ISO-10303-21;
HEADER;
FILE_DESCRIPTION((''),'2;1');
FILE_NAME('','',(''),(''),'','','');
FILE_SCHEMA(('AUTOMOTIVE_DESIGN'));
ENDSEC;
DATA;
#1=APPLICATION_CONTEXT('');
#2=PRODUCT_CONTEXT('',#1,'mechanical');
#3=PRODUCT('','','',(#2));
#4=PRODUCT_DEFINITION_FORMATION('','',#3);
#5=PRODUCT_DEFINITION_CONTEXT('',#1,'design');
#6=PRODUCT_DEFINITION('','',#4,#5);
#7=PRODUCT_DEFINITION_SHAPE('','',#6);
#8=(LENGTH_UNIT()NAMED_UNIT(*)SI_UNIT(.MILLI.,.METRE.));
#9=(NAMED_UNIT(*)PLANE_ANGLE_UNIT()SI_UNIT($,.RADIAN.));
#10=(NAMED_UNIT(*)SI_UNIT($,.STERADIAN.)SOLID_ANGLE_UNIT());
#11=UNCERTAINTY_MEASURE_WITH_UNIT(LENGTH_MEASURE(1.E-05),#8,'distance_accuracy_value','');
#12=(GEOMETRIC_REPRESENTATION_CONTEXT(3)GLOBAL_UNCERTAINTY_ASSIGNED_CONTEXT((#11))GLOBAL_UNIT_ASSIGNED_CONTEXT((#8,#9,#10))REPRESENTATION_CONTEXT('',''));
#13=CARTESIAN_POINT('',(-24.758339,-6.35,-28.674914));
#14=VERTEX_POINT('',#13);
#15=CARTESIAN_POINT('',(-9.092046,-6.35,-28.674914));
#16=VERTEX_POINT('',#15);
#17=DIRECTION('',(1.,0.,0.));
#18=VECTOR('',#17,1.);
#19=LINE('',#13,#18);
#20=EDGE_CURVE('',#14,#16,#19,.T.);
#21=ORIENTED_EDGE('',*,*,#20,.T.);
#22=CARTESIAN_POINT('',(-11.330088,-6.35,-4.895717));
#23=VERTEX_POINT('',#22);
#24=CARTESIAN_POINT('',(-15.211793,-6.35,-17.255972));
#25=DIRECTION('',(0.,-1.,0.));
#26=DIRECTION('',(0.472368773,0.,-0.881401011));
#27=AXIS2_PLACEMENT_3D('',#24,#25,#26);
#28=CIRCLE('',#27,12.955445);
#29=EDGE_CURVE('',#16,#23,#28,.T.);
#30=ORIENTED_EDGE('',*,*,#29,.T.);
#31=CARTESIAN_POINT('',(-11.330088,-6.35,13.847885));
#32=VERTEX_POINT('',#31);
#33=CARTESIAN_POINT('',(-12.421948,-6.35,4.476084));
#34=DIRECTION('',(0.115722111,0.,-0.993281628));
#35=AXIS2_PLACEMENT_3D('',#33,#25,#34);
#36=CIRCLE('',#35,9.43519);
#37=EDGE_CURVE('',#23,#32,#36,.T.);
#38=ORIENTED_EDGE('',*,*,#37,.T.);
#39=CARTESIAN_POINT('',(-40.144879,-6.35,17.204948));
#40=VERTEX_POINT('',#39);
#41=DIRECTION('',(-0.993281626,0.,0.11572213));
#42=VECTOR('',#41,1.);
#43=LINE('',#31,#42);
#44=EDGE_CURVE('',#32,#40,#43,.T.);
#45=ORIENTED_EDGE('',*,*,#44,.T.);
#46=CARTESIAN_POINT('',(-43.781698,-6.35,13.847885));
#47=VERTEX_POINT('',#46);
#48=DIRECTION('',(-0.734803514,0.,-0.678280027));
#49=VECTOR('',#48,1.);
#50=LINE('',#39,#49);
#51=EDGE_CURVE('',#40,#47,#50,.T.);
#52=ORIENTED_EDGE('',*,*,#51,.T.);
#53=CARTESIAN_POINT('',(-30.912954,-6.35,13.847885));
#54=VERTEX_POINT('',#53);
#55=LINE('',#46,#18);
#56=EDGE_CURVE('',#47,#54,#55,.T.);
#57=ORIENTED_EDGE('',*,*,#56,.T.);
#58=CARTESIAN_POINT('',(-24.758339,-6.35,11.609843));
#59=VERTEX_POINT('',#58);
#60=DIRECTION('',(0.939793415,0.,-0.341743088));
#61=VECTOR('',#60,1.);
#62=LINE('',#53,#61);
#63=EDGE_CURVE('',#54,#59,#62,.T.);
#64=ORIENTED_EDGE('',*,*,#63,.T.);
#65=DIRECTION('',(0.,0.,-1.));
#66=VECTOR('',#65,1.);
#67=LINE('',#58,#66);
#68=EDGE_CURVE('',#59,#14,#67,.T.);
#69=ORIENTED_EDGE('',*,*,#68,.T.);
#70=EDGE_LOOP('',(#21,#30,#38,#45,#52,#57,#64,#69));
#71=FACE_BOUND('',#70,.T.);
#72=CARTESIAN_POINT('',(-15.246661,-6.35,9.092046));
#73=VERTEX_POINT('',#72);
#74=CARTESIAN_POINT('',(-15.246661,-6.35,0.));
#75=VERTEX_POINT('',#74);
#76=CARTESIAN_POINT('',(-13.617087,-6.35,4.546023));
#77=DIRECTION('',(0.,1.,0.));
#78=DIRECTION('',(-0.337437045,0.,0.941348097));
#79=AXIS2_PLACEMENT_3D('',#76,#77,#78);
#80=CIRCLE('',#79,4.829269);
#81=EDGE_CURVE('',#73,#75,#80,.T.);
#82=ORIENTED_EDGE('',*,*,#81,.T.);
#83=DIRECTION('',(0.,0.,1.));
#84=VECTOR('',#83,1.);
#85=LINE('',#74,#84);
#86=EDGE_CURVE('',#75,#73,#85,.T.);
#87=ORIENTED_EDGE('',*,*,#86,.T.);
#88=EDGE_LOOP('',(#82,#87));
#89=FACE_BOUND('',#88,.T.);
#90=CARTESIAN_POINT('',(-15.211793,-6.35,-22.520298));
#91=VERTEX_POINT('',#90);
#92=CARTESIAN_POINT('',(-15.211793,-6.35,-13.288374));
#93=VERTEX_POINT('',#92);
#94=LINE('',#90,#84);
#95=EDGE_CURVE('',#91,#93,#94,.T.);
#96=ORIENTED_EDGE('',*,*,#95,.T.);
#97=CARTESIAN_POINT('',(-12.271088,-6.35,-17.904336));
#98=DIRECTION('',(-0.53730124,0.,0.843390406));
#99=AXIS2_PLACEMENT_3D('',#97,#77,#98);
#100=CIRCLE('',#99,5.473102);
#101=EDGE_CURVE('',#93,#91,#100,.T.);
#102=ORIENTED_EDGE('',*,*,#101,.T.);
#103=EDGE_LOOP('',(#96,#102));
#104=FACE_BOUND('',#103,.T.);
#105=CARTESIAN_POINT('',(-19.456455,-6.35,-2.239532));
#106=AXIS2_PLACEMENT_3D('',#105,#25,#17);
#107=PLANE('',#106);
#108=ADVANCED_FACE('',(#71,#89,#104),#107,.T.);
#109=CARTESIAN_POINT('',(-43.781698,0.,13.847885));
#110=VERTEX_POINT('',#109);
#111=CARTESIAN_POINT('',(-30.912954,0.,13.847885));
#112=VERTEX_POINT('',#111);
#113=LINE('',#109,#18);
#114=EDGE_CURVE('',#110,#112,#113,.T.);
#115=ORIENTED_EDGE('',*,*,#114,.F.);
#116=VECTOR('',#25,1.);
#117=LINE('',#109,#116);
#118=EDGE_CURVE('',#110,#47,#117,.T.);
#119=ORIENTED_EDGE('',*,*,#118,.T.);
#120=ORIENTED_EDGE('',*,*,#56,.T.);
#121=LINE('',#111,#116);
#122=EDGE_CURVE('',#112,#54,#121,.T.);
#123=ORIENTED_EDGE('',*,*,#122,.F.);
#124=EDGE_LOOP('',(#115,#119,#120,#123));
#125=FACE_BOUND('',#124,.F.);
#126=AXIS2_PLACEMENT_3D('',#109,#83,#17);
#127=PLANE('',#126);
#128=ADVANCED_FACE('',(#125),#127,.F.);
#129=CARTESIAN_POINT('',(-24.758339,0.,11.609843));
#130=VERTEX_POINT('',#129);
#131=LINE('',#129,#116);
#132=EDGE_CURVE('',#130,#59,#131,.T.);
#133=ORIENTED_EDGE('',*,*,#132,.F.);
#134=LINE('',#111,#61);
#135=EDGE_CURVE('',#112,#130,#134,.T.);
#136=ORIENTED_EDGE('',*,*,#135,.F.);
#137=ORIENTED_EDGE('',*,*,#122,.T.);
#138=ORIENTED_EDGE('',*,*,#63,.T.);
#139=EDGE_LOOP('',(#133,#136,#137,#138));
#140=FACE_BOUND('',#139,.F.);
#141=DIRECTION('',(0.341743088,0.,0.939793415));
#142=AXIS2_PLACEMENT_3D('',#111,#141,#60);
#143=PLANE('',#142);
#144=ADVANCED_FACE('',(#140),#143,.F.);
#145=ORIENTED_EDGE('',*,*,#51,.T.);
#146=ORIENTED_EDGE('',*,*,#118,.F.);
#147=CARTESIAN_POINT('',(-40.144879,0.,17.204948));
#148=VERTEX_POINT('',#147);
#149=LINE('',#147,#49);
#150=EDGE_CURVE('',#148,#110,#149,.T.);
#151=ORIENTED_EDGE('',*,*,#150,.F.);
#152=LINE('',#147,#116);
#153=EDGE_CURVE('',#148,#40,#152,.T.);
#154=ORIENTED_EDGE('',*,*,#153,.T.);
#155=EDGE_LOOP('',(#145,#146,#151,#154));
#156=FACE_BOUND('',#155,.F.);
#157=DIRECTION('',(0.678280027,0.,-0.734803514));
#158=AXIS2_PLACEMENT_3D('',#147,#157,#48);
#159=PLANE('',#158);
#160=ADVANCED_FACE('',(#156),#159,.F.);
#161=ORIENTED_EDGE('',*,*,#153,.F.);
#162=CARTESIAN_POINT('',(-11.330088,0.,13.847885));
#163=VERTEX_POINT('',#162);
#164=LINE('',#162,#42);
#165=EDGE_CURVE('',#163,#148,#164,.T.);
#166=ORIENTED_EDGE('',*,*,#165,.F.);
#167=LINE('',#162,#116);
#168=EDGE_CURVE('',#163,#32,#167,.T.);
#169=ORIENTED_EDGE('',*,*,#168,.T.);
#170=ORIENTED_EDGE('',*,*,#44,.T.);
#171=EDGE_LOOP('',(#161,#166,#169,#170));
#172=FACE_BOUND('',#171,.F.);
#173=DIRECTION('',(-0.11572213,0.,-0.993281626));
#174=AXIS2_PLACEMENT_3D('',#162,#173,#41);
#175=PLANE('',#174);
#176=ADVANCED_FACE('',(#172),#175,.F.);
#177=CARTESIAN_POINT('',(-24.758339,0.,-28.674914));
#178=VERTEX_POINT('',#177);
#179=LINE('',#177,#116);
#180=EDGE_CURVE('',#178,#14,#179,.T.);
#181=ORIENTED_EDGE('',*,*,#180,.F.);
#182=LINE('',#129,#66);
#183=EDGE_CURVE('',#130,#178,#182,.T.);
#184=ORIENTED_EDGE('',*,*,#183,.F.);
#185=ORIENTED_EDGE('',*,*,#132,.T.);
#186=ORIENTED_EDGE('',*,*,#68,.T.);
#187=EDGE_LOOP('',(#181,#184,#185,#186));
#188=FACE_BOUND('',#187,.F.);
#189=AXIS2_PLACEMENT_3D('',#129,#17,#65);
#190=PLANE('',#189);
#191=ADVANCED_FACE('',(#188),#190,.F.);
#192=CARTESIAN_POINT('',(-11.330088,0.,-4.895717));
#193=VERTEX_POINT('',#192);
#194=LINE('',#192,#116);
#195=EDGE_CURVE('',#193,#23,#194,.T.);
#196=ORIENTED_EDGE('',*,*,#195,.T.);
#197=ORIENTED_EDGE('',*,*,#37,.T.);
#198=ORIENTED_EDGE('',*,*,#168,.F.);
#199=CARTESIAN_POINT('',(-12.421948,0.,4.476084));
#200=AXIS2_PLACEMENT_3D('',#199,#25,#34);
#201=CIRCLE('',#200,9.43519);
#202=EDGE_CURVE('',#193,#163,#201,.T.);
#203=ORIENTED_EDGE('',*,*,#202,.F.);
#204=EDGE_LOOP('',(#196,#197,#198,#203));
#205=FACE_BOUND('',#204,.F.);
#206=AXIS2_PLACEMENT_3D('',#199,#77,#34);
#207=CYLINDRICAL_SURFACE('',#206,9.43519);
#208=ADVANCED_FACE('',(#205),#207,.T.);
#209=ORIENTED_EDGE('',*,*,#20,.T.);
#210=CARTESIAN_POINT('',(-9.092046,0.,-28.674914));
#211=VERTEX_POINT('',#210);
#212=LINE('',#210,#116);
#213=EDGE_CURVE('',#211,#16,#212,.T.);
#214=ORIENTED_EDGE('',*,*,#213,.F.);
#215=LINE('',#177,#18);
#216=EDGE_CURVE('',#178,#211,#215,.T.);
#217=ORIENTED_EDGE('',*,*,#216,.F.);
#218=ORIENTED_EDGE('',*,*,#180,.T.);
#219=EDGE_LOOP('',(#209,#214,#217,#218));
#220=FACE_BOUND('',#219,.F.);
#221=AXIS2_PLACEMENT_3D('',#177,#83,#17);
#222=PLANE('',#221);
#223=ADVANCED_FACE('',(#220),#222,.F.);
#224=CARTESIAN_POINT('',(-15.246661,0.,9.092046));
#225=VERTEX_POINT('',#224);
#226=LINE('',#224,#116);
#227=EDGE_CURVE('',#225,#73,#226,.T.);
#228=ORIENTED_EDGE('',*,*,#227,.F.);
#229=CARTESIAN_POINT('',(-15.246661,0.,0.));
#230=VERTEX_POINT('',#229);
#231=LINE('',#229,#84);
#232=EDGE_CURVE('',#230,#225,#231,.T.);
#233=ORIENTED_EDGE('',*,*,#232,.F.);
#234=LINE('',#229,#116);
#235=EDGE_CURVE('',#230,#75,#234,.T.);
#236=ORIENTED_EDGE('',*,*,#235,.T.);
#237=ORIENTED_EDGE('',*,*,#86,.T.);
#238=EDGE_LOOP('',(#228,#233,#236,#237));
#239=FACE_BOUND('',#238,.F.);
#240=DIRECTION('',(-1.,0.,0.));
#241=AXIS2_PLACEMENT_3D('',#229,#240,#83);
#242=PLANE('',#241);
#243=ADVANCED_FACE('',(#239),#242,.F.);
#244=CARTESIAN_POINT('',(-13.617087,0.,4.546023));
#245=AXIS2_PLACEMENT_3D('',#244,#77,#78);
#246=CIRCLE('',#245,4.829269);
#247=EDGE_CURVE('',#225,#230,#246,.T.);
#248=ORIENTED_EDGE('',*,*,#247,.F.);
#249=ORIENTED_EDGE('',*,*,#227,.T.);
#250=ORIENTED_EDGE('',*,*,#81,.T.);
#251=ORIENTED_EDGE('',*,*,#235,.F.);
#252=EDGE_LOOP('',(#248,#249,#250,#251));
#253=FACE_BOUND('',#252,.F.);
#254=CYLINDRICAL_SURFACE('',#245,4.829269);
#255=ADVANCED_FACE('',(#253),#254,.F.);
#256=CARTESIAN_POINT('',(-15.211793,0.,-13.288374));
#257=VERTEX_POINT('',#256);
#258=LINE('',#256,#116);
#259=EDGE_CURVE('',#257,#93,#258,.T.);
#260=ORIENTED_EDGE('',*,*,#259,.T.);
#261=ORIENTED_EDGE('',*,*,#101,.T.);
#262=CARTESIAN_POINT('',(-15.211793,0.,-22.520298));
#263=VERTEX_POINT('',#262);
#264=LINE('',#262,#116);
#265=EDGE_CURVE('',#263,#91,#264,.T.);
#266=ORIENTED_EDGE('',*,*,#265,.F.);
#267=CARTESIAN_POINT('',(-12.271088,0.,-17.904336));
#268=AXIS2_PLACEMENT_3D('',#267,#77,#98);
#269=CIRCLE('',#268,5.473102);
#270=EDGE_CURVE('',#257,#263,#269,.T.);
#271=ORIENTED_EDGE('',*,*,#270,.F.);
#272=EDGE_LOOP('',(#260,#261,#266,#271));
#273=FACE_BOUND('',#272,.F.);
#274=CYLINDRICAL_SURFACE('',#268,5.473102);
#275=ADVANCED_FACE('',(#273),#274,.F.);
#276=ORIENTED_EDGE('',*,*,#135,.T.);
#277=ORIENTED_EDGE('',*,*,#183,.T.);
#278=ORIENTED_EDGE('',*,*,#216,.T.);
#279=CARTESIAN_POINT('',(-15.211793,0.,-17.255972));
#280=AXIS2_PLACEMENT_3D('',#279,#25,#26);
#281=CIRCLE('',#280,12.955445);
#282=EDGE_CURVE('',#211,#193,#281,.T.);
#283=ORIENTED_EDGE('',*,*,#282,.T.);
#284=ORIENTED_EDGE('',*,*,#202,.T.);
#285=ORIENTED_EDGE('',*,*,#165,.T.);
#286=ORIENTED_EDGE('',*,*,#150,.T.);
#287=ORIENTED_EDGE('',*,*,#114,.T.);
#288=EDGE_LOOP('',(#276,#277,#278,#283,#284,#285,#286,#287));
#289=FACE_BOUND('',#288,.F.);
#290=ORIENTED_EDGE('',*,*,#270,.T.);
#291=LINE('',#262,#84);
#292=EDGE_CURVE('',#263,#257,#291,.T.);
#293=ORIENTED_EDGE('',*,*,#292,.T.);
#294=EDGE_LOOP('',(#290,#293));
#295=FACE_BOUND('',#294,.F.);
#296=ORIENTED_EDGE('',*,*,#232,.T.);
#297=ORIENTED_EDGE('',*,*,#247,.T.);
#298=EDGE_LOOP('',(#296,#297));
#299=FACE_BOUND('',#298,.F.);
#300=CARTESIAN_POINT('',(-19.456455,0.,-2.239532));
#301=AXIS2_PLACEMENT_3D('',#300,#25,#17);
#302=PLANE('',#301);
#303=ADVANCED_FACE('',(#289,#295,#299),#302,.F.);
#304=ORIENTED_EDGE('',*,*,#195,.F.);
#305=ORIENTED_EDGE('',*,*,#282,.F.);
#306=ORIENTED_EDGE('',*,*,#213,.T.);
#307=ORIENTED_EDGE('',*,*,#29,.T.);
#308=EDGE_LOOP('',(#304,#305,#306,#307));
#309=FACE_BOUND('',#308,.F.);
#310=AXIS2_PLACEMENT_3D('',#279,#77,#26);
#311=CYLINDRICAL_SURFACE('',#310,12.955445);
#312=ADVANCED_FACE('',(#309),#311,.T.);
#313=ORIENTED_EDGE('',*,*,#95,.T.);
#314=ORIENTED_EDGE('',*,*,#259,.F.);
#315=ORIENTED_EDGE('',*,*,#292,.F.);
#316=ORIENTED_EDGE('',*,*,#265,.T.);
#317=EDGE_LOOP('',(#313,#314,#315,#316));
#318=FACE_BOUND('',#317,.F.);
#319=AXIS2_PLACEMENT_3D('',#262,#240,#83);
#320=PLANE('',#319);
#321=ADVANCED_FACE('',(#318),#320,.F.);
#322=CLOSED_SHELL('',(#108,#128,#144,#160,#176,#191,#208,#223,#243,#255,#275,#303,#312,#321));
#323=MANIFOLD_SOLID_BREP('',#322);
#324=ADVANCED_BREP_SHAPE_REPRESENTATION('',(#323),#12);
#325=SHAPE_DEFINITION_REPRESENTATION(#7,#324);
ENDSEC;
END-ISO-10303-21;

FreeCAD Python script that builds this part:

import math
import FreeCAD as App
import Part
import Sketcher
from FreeCAD import Vector
Q = App.Units.Quantity

doc = App.newDocument("Part")
body = doc.addObject("PartDesign::Body", "Body")

sketch1 = body.newObject("Sketcher::SketchObject", "Sketch")
sketch1.AttachmentSupport = (doc.getObject("XZ_Plane"), [""])
sketch1.MapMode = "FlatFace"
sketch1.addGeometry(Part.LineSegment(Vector(-30.912954, 13.847885, 0), Vector(-24.758339, 11.609843, 0)), False)
sketch1.addGeometry(Part.LineSegment(Vector(-24.758339, 11.609843, 0), Vector(-24.758339, -28.674914, 0)), False)
sketch1.addGeometry(Part.LineSegment(Vector(-24.758339, -28.674914, 0), Vector(-9.092046, -28.674914, 0)), False)
sketch1.addGeometry(Part.ArcOfCircle(Part.Circle(Vector(-15.211793, -17.255972, 0), Vector(0, 0, 1), 12.955445), math.radians(-61.811831), math.radians(72.565242)), False)
sketch1.addGeometry(Part.ArcOfCircle(Part.Circle(Vector(-12.421948, 4.476084, 0), Vector(0, 0, 1), 9.43519), math.radians(-83.354723), math.radians(83.354723)), False)
sketch1.addGeometry(Part.LineSegment(Vector(-11.330088, 13.847885, 0), Vector(-40.144879, 17.204948, 0)), False)
sketch1.addGeometry(Part.LineSegment(Vector(-40.144879, 17.204948, 0), Vector(-43.781698, 13.847885, 0)), False)
sketch1.addGeometry(Part.LineSegment(Vector(-43.781698, 13.847885, 0), Vector(-30.912954, 13.847885, 0)), False)
sketch1.addGeometry(Part.ArcOfCircle(Part.Circle(Vector(-12.271088, -17.904336, 0), Vector(0, 0, 1), 5.473102), math.radians(-122.500111), math.radians(122.500111)), False)
sketch1.addGeometry(Part.LineSegment(Vector(-15.211793, -22.520298, 0), Vector(-15.211793, -13.288374, 0)), False)
sketch1.addGeometry(Part.ArcOfCircle(Part.Circle(Vector(-13.617087, 4.546023, 0), Vector(0, 0, 1), 4.829269), math.radians(-109.720802), math.radians(109.720802)), False)
sketch1.addGeometry(Part.LineSegment(Vector(-15.246661, 0, 0), Vector(-15.246661, 9.092046, 0)), False)
sketch1.addConstraint(Sketcher.Constraint("Coincident", 0, 2, 1, 1))
sketch1.addConstraint(Sketcher.Constraint("Coincident", 1, 2, 2, 1))
sketch1.addConstraint(Sketcher.Constraint("Coincident", 2, 2, 3, 1))
sketch1.addConstraint(Sketcher.Constraint("Coincident", 3, 2, 4, 1))
sketch1.addConstraint(Sketcher.Constraint("Tangent", 4, 2, 5, 1))
sketch1.addConstraint(Sketcher.Constraint("Coincident", 5, 2, 6, 1))
sketch1.addConstraint(Sketcher.Constraint("Coincident", 6, 2, 7, 1))
sketch1.addConstraint(Sketcher.Constraint("Coincident", 7, 2, 0, 1))
sketch1.addConstraint(Sketcher.Constraint("Coincident", 8, 1, 9, 1))
sketch1.addConstraint(Sketcher.Constraint("Coincident", 9, 2, 8, 2))
sketch1.addConstraint(Sketcher.Constraint("Coincident", 10, 1, 11, 1))
sketch1.addConstraint(Sketcher.Constraint("Coincident", 11, 2, 10, 2))
sketch1.addConstraint(Sketcher.Constraint("Vertical", 1))
sketch1.addConstraint(Sketcher.Constraint("Horizontal", 2))
sketch1.addConstraint(Sketcher.Constraint("Horizontal", 7))
sketch1.addConstraint(Sketcher.Constraint("Vertical", 9))
sketch1.addConstraint(Sketcher.Constraint("Vertical", 11))
sketch1.addConstraint(Sketcher.Constraint("PointOnObject", 10, 1, -1))
sketch1.addConstraint(Sketcher.Constraint("Horizontal", 4, 2, 6, 2))
sketch1.addConstraint(Sketcher.Constraint("Vertical", 3, 2, 4, 2))
sketch1.addConstraint(Sketcher.Constraint("Vertical", 3, 3, 8, 1))
sketch1.addConstraint(Sketcher.Constraint("Radius", 4, Q("9.43519 mm")))
sketch1.addConstraint(Sketcher.Constraint("Radius", 10, Q("4.829269 mm")))
sketch1.addConstraint(Sketcher.Constraint("Radius", 3, Q("12.955445 mm")))
sketch1.addConstraint(Sketcher.Constraint("Radius", 8, Q("5.473102 mm")))
sketch1.addConstraint(Sketcher.Constraint("DistanceY", 8, 1, -1, 1, Q("22.520298 mm")))
sketch1.addConstraint(Sketcher.Constraint("DistanceX", 10, 3, 8, 3, Q("1.345998 mm")))
sketch1.addConstraint(Sketcher.Constraint("DistanceY", 3, 2, 4, 3, Q("9.371801 mm")))
sketch1.addConstraint(Sketcher.Constraint("DistanceX", 10, 3, 3, 2, Q("2.286999 mm")))
sketch1.addConstraint(Sketcher.Constraint("DistanceY", 3, 3, 9, 2, Q("3.967598 mm")))
sketch1.addConstraint(Sketcher.Constraint("Distance", 5, Q("29.009689 mm")))
sketch1.addConstraint(Sketcher.Constraint("DistanceX", 2, 1, 2, 2, Q("15.666293 mm")))
sketch1.addConstraint(Sketcher.Constraint("DistanceX", 7, 1, 7, 2, Q("12.868744 mm")))
sketch1.addConstraint(Sketcher.Constraint("DistanceY", 1, 2, 1, 1, Q("40.284757 mm")))
sketch1.addConstraint(Sketcher.Constraint("DistanceY", 9, 1, 9, 2, Q("9.231924 mm")))
sketch1.addConstraint(Sketcher.Constraint("DistanceY", 11, 1, 11, 2, Q("9.092046 mm")))
sketch1.addConstraint(Sketcher.Constraint("DistanceX", 4, 3, -1, 1, Q("12.421948 mm")))
sketch1.addConstraint(Sketcher.Constraint("DistanceX", 0, 2, -1, 1, Q("24.758339 mm")))
sketch1.addConstraint(Sketcher.Constraint("DistanceX", 6, 2, 5, 2, Q("3.636819 mm")))
pad1 = body.newObject("PartDesign::Pad", "Pad")
pad1.Profile = sketch1
pad1.Length = Q("0.25 in")

doc.recompute()
